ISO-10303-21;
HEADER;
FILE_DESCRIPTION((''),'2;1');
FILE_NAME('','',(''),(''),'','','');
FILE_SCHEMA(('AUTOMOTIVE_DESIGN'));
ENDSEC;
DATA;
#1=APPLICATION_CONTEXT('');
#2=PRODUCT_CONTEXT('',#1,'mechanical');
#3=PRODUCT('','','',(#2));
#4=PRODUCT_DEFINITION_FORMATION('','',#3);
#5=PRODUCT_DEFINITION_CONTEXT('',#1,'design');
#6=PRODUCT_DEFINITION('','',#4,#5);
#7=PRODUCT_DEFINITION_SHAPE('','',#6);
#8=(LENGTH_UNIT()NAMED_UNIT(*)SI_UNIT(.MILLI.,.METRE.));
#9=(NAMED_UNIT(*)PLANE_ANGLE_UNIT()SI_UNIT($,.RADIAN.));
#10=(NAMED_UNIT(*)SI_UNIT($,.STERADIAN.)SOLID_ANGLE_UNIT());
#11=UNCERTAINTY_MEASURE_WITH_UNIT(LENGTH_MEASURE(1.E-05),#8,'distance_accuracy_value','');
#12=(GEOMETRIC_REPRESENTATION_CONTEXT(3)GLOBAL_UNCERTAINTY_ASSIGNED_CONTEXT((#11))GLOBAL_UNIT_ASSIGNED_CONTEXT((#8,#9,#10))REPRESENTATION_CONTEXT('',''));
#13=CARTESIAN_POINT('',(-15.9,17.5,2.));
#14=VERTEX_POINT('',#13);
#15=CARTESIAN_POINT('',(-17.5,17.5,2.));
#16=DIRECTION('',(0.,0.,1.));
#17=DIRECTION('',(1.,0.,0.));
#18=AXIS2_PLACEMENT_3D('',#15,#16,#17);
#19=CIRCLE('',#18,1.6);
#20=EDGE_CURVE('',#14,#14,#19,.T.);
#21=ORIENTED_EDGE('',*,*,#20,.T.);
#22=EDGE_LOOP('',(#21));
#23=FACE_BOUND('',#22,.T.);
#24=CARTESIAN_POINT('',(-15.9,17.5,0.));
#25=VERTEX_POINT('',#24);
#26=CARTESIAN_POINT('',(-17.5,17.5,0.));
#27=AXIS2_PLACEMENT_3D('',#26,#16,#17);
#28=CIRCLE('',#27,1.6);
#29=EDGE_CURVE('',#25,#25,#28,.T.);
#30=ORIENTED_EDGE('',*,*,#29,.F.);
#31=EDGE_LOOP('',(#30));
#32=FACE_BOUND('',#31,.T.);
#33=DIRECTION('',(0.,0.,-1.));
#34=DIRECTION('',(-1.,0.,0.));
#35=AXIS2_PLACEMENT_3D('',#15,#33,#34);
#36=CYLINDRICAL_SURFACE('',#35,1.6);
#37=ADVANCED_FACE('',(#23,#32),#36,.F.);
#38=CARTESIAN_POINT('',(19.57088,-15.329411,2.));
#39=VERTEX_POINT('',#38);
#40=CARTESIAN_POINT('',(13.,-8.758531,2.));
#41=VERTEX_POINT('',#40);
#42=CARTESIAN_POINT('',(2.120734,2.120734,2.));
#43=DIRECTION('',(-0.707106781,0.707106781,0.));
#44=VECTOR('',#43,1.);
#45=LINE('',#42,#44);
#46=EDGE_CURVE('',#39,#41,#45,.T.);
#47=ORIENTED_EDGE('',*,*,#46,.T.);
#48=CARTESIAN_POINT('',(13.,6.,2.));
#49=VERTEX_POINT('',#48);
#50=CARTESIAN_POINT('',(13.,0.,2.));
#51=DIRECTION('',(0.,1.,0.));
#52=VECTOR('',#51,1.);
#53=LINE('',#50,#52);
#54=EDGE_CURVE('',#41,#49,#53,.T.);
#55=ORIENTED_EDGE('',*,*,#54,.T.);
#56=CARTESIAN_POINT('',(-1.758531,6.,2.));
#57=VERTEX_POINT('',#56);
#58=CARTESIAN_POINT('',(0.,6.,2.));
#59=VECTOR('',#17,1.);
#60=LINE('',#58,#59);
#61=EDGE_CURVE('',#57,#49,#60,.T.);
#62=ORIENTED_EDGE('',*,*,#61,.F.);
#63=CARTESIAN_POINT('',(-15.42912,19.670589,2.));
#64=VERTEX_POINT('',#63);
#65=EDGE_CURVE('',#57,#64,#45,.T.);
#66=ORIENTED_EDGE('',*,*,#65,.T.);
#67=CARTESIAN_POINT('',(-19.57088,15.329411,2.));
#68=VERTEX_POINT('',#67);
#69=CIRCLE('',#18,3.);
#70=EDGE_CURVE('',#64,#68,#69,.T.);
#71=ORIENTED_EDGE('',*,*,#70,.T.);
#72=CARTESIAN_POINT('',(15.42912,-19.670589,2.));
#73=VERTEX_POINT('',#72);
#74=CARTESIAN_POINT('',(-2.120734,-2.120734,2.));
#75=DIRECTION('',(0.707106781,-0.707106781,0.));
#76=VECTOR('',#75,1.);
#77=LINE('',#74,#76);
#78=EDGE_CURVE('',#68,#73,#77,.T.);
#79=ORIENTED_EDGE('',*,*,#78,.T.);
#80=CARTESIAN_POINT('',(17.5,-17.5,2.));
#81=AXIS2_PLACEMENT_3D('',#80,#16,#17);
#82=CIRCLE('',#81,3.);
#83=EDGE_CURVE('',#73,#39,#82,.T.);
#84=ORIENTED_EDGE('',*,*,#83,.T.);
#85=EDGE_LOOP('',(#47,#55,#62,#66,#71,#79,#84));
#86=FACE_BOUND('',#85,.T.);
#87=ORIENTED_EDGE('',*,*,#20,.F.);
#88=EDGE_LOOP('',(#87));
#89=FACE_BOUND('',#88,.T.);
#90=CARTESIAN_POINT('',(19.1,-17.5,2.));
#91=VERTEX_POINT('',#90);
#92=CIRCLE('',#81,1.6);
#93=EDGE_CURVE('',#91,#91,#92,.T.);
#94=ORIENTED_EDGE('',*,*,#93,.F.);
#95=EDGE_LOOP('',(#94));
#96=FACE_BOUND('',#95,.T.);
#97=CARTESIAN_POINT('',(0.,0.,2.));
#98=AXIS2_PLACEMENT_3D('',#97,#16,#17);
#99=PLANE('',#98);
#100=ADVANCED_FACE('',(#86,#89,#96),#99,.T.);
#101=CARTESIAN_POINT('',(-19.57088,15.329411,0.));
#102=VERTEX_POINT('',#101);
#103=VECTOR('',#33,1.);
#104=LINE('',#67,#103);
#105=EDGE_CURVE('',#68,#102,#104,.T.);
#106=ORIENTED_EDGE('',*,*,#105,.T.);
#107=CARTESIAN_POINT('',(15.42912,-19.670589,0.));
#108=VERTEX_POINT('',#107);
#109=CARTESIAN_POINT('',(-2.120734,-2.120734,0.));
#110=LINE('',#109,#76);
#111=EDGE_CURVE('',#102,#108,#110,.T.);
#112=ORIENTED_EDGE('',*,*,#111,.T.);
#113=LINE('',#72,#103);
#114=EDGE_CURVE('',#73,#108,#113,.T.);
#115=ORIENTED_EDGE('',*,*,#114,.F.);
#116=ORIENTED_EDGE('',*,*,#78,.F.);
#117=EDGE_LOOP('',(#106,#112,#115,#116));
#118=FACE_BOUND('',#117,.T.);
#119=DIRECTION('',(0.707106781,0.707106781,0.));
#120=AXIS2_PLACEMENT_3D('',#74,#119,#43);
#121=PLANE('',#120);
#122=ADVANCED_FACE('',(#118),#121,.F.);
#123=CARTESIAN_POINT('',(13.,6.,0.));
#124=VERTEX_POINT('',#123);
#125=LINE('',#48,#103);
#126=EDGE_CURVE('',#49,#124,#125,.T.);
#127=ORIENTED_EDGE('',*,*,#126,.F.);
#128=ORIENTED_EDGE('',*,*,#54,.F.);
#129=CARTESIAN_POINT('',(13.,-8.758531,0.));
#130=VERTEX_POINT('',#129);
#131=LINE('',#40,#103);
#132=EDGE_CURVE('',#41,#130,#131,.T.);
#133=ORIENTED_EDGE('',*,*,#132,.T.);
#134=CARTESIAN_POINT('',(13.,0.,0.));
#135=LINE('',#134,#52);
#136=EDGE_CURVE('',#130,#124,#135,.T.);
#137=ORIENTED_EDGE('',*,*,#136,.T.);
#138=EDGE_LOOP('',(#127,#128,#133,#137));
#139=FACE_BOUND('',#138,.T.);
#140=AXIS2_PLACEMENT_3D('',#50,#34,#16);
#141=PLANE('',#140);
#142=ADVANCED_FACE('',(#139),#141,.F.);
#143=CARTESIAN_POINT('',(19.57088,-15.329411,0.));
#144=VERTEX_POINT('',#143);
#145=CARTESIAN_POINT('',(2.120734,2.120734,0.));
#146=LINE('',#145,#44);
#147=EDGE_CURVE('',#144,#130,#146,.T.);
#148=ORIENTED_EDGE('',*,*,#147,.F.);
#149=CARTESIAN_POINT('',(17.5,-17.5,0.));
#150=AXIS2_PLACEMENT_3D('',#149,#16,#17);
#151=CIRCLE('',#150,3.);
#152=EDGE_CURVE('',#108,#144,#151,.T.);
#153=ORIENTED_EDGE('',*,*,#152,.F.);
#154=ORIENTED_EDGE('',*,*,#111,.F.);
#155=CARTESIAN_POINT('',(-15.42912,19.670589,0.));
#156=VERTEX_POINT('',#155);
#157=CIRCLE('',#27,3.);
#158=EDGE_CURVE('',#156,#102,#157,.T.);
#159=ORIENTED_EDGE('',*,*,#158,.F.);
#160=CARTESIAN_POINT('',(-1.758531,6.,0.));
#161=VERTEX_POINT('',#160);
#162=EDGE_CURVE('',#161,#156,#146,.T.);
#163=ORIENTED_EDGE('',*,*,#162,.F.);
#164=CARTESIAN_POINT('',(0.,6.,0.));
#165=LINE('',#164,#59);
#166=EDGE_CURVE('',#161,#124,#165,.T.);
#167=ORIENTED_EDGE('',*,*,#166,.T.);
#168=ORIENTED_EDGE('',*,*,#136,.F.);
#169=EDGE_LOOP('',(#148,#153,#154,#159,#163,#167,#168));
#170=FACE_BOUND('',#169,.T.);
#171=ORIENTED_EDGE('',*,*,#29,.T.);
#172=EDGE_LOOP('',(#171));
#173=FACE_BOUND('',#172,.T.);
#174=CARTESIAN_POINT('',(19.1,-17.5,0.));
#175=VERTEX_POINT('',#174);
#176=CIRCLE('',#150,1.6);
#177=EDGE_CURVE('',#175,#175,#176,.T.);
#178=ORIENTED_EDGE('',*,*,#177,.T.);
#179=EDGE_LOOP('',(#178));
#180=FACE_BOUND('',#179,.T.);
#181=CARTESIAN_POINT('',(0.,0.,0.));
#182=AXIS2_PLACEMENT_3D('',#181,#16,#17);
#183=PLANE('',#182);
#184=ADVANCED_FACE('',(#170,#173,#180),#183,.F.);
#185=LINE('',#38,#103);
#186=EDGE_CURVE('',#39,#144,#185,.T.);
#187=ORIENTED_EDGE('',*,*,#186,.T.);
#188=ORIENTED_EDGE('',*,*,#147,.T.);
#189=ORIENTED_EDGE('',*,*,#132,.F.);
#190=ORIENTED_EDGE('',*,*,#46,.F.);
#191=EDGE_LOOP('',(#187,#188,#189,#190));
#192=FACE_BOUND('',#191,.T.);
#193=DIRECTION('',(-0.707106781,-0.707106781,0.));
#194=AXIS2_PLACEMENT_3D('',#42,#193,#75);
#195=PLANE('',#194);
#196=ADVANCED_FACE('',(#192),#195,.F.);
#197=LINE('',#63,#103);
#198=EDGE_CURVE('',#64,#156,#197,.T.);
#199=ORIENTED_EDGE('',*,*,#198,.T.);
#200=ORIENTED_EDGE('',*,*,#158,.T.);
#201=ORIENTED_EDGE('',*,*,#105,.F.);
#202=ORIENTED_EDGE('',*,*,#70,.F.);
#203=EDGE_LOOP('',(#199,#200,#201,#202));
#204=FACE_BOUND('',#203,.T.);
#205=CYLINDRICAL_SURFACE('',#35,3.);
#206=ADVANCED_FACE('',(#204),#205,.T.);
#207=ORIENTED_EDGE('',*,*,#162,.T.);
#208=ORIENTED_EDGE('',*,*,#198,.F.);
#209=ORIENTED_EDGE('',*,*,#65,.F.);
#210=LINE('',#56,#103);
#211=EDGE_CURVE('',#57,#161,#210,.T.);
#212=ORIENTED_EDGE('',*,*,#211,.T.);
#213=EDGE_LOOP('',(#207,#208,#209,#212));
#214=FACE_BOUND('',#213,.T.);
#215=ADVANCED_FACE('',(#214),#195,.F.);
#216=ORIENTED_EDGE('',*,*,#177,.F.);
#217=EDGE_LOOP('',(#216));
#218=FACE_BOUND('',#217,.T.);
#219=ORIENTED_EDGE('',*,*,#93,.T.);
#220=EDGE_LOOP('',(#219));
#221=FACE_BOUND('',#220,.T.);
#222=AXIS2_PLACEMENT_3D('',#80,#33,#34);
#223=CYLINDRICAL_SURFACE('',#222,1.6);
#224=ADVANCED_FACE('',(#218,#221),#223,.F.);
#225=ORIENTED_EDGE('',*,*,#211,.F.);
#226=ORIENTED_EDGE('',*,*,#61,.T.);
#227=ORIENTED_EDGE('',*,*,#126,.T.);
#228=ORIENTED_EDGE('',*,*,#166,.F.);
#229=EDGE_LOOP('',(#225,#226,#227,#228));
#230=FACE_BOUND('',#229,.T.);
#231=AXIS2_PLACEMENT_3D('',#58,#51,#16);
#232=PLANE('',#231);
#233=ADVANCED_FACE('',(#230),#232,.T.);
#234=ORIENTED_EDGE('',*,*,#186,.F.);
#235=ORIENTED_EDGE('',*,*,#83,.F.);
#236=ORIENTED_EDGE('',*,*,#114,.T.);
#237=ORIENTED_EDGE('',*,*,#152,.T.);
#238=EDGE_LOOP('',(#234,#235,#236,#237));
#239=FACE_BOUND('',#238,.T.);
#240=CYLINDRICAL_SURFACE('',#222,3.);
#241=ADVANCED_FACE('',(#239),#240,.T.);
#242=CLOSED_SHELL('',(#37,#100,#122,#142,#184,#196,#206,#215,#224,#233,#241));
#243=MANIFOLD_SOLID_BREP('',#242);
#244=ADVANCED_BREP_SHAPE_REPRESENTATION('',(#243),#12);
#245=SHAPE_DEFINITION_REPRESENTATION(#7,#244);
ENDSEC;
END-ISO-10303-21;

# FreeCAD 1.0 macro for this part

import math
import FreeCAD as App
import Part
import Sketcher
Q = App.Units.Quantity

doc = App.newDocument("Part")
body = doc.addObject("PartDesign::Body", "Body")

sketch1 = body.newObject("Sketcher::SketchObject", "Sketch")
sketch1.AttachmentSupport = (doc.getObject("XY_Plane"), [""])
sketch1.MapMode = "FlatFace"
sketch1.addGeometry([
    Part.LineSegment(App.Vector(0, -4.241469, 0), App.Vector(2.758531, -7, 0)),
    Part.LineSegment(App.Vector(2.758531, -7, 0), App.Vector(15.329411, -19.57088, 0)),
    Part.LineSegment(App.Vector(15.329411, -19.57088, 0), App.Vector(15.42912, -19.670589, 0)),
    Part.ArcOfCircle(Part.Circle(App.Vector(17.5, -17.5, 0), App.Vector(0, 0, 1), 3), math.radians(-133.653322), math.radians(46.346678)),
    Part.LineSegment(App.Vector(19.57088, -15.329411, 0), App.Vector(13, -8.758531, 0)),
    Part.LineSegment(App.Vector(13, -8.758531, 0), App.Vector(13, 6, 0)),
    Part.LineSegment(App.Vector(13, 6, 0), App.Vector(-1.758531, 6, 0)),
    Part.LineSegment(App.Vector(-1.758531, 6, 0), App.Vector(-15.329411, 19.57088, 0)),
    Part.LineSegment(App.Vector(-15.329411, 19.57088, 0), App.Vector(-15.42912, 19.670589, 0)),
    Part.ArcOfCircle(Part.Circle(App.Vector(-17.5, 17.5, 0), App.Vector(0, 0, 1), 3), math.radians(46.346678), math.radians(226.346678)),
    Part.LineSegment(App.Vector(-19.57088, 15.329411, 0), App.Vector(0, -4.241469, 0)),
    Part.Circle(App.Vector(17.5, -17.5, 0), App.Vector(0, 0, 1), 1.6),
    Part.Circle(App.Vector(-17.5, 17.5, 0), App.Vector(0, 0, 1), 1.6),
], False)
sketch1.addConstraint([
    Sketcher.Constraint("Coincident", 0, 2, 1, 1),
    Sketcher.Constraint("Coincident", 1, 2, 2, 1),
    Sketcher.Constraint("Coincident", 2, 2, 3, 1),
    Sketcher.Constraint("Coincident", 3, 2, 4, 1),
    Sketcher.Constraint("Coincident", 4, 2, 5, 1),
    Sketcher.Constraint("Coincident", 5, 2, 6, 1),
    Sketcher.Constraint("Coincident", 6, 2, 7, 1),
    Sketcher.Constraint("Coincident", 7, 2, 8, 1),
    Sketcher.Constraint("Coincident", 8, 2, 9, 1),
    Sketcher.Constraint("Coincident", 9, 2, 10, 1),
    Sketcher.Constraint("Coincident", 10, 2, 0, 1),
    Sketcher.Constraint("Vertical", 5),
    Sketcher.Constraint("Horizontal", 6),
    Sketcher.Constraint("Coincident", 11, 3, 3, 3),
    Sketcher.Constraint("Coincident", 12, 3, 9, 3),
    Sketcher.Constraint("Equal", 3, 9),
    Sketcher.Constraint("Equal", 11, 12),
    Sketcher.Constraint("Symmetric", 3, 3, 9, 3, -1, 1),
    Sketcher.Constraint("Symmetric", 1, 2, 7, 2, -1, 1),
    Sketcher.Constraint("PointOnObject", 10, 2, -2),
    Sketcher.Constraint("Parallel", 0, 1),
    Sketcher.Constraint("Parallel", 1, 2),
    Sketcher.Constraint("Parallel", 2, 4),
    Sketcher.Constraint("Parallel", 4, 7),
    Sketcher.Constraint("Parallel", 7, 8),
    Sketcher.Constraint("Parallel", 8, 10),
    Sketcher.Constraint("Equal", 6, 5),
    Sketcher.Constraint("Radius", 3, 3.0),
    Sketcher.Constraint("Diameter", 11, 3.2),
    Sketcher.Constraint("Angle", 0, Q("-45 deg")),
    Sketcher.Constraint("DistanceY", 0, 2, -1, 1, 7.0),
    Sketcher.Constraint("DistanceX", -1, 1, 4, 2, 13.0),
    Sketcher.Constraint("DistanceY", -1, 1, 5, 2, 6.0),
    Sketcher.Constraint("DistanceX", 9, 3, 3, 3, 35.0),
    Sketcher.Constraint("DistanceY", 3, 3, 9, 3, 35.0),
    Sketcher.Constraint("DistanceX", 6, 2, 6, 1, 14.758531),
    Sketcher.Constraint("Distance", 1, 17.777908),
])
pad1 = body.newObject("PartDesign::Pad", "Pad")
pad1.Profile = sketch1
pad1.Length = 2

doc.recompute()
